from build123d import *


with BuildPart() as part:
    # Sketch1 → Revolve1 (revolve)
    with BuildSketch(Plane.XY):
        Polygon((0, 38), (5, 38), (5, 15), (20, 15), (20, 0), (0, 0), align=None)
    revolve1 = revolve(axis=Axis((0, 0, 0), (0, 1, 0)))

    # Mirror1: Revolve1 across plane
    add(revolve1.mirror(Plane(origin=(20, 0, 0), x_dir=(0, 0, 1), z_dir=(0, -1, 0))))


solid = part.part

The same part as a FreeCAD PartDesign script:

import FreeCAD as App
import Part
import Sketcher


def add_polygon(sketch, points):
    """Adds a closed chain of lines whose ends are joined by coincident constraints."""
    first, n = sketch.GeometryCount, len(points)
    for a, b in zip(points, points[1:] + points[:1]):
        sketch.addGeometry(Part.LineSegment(App.Vector(*a, 0), App.Vector(*b, 0)), False)
    for i in range(n):
        sketch.addConstraint(Sketcher.Constraint("Coincident", first + i, 2, first + (i + 1) % n, 1))

doc = App.newDocument("Part")
body = doc.addObject("PartDesign::Body", "Body")

# Sketch on XY plane
sketch1 = body.newObject("Sketcher::SketchObject", "Sketch")
sketch1.AttachmentSupport = (doc.getObject("XY_Plane"), [""])
sketch1.MapMode = "FlatFace"
add_polygon(sketch1, [(5, 38), (0, 38), (0, 0), (20, 0), (20, 15), (5, 15)])  # lines 0-5
sketch1.addConstraint([
    Sketcher.Constraint("Horizontal", 0),
    Sketcher.Constraint("Vertical", 1),
    Sketcher.Constraint("Horizontal", 2),
    Sketcher.Constraint("Vertical", 3),
    Sketcher.Constraint("Horizontal", 4),
    Sketcher.Constraint("Vertical", 5),
    Sketcher.Constraint("Coincident", 1, 2, -1, 1),
    Sketcher.Constraint("Equal", 4, 3),
    Sketcher.Constraint("DistanceX", 0, 2, 0, 1, 5.0),
    Sketcher.Constraint("DistanceX", 2, 1, 2, 2, 20.0),
    Sketcher.Constraint("DistanceY", 1, 2, 1, 1, 38.0),
])
revolution = body.newObject("PartDesign::Revolution", "Revolution")
revolution.Profile = sketch1
revolution.ReferenceAxis = (sketch1, ["V_Axis"])
revolution.Angle = 360
doc.recompute()

mirrored = body.newObject("PartDesign::Mirrored", "Mirrored")
mirrored.Originals = [revolution]
mirrored.MirrorPlane = (doc.getObject("XZ_Plane"), [""])
body.Tip = mirrored

doc.recompute()
